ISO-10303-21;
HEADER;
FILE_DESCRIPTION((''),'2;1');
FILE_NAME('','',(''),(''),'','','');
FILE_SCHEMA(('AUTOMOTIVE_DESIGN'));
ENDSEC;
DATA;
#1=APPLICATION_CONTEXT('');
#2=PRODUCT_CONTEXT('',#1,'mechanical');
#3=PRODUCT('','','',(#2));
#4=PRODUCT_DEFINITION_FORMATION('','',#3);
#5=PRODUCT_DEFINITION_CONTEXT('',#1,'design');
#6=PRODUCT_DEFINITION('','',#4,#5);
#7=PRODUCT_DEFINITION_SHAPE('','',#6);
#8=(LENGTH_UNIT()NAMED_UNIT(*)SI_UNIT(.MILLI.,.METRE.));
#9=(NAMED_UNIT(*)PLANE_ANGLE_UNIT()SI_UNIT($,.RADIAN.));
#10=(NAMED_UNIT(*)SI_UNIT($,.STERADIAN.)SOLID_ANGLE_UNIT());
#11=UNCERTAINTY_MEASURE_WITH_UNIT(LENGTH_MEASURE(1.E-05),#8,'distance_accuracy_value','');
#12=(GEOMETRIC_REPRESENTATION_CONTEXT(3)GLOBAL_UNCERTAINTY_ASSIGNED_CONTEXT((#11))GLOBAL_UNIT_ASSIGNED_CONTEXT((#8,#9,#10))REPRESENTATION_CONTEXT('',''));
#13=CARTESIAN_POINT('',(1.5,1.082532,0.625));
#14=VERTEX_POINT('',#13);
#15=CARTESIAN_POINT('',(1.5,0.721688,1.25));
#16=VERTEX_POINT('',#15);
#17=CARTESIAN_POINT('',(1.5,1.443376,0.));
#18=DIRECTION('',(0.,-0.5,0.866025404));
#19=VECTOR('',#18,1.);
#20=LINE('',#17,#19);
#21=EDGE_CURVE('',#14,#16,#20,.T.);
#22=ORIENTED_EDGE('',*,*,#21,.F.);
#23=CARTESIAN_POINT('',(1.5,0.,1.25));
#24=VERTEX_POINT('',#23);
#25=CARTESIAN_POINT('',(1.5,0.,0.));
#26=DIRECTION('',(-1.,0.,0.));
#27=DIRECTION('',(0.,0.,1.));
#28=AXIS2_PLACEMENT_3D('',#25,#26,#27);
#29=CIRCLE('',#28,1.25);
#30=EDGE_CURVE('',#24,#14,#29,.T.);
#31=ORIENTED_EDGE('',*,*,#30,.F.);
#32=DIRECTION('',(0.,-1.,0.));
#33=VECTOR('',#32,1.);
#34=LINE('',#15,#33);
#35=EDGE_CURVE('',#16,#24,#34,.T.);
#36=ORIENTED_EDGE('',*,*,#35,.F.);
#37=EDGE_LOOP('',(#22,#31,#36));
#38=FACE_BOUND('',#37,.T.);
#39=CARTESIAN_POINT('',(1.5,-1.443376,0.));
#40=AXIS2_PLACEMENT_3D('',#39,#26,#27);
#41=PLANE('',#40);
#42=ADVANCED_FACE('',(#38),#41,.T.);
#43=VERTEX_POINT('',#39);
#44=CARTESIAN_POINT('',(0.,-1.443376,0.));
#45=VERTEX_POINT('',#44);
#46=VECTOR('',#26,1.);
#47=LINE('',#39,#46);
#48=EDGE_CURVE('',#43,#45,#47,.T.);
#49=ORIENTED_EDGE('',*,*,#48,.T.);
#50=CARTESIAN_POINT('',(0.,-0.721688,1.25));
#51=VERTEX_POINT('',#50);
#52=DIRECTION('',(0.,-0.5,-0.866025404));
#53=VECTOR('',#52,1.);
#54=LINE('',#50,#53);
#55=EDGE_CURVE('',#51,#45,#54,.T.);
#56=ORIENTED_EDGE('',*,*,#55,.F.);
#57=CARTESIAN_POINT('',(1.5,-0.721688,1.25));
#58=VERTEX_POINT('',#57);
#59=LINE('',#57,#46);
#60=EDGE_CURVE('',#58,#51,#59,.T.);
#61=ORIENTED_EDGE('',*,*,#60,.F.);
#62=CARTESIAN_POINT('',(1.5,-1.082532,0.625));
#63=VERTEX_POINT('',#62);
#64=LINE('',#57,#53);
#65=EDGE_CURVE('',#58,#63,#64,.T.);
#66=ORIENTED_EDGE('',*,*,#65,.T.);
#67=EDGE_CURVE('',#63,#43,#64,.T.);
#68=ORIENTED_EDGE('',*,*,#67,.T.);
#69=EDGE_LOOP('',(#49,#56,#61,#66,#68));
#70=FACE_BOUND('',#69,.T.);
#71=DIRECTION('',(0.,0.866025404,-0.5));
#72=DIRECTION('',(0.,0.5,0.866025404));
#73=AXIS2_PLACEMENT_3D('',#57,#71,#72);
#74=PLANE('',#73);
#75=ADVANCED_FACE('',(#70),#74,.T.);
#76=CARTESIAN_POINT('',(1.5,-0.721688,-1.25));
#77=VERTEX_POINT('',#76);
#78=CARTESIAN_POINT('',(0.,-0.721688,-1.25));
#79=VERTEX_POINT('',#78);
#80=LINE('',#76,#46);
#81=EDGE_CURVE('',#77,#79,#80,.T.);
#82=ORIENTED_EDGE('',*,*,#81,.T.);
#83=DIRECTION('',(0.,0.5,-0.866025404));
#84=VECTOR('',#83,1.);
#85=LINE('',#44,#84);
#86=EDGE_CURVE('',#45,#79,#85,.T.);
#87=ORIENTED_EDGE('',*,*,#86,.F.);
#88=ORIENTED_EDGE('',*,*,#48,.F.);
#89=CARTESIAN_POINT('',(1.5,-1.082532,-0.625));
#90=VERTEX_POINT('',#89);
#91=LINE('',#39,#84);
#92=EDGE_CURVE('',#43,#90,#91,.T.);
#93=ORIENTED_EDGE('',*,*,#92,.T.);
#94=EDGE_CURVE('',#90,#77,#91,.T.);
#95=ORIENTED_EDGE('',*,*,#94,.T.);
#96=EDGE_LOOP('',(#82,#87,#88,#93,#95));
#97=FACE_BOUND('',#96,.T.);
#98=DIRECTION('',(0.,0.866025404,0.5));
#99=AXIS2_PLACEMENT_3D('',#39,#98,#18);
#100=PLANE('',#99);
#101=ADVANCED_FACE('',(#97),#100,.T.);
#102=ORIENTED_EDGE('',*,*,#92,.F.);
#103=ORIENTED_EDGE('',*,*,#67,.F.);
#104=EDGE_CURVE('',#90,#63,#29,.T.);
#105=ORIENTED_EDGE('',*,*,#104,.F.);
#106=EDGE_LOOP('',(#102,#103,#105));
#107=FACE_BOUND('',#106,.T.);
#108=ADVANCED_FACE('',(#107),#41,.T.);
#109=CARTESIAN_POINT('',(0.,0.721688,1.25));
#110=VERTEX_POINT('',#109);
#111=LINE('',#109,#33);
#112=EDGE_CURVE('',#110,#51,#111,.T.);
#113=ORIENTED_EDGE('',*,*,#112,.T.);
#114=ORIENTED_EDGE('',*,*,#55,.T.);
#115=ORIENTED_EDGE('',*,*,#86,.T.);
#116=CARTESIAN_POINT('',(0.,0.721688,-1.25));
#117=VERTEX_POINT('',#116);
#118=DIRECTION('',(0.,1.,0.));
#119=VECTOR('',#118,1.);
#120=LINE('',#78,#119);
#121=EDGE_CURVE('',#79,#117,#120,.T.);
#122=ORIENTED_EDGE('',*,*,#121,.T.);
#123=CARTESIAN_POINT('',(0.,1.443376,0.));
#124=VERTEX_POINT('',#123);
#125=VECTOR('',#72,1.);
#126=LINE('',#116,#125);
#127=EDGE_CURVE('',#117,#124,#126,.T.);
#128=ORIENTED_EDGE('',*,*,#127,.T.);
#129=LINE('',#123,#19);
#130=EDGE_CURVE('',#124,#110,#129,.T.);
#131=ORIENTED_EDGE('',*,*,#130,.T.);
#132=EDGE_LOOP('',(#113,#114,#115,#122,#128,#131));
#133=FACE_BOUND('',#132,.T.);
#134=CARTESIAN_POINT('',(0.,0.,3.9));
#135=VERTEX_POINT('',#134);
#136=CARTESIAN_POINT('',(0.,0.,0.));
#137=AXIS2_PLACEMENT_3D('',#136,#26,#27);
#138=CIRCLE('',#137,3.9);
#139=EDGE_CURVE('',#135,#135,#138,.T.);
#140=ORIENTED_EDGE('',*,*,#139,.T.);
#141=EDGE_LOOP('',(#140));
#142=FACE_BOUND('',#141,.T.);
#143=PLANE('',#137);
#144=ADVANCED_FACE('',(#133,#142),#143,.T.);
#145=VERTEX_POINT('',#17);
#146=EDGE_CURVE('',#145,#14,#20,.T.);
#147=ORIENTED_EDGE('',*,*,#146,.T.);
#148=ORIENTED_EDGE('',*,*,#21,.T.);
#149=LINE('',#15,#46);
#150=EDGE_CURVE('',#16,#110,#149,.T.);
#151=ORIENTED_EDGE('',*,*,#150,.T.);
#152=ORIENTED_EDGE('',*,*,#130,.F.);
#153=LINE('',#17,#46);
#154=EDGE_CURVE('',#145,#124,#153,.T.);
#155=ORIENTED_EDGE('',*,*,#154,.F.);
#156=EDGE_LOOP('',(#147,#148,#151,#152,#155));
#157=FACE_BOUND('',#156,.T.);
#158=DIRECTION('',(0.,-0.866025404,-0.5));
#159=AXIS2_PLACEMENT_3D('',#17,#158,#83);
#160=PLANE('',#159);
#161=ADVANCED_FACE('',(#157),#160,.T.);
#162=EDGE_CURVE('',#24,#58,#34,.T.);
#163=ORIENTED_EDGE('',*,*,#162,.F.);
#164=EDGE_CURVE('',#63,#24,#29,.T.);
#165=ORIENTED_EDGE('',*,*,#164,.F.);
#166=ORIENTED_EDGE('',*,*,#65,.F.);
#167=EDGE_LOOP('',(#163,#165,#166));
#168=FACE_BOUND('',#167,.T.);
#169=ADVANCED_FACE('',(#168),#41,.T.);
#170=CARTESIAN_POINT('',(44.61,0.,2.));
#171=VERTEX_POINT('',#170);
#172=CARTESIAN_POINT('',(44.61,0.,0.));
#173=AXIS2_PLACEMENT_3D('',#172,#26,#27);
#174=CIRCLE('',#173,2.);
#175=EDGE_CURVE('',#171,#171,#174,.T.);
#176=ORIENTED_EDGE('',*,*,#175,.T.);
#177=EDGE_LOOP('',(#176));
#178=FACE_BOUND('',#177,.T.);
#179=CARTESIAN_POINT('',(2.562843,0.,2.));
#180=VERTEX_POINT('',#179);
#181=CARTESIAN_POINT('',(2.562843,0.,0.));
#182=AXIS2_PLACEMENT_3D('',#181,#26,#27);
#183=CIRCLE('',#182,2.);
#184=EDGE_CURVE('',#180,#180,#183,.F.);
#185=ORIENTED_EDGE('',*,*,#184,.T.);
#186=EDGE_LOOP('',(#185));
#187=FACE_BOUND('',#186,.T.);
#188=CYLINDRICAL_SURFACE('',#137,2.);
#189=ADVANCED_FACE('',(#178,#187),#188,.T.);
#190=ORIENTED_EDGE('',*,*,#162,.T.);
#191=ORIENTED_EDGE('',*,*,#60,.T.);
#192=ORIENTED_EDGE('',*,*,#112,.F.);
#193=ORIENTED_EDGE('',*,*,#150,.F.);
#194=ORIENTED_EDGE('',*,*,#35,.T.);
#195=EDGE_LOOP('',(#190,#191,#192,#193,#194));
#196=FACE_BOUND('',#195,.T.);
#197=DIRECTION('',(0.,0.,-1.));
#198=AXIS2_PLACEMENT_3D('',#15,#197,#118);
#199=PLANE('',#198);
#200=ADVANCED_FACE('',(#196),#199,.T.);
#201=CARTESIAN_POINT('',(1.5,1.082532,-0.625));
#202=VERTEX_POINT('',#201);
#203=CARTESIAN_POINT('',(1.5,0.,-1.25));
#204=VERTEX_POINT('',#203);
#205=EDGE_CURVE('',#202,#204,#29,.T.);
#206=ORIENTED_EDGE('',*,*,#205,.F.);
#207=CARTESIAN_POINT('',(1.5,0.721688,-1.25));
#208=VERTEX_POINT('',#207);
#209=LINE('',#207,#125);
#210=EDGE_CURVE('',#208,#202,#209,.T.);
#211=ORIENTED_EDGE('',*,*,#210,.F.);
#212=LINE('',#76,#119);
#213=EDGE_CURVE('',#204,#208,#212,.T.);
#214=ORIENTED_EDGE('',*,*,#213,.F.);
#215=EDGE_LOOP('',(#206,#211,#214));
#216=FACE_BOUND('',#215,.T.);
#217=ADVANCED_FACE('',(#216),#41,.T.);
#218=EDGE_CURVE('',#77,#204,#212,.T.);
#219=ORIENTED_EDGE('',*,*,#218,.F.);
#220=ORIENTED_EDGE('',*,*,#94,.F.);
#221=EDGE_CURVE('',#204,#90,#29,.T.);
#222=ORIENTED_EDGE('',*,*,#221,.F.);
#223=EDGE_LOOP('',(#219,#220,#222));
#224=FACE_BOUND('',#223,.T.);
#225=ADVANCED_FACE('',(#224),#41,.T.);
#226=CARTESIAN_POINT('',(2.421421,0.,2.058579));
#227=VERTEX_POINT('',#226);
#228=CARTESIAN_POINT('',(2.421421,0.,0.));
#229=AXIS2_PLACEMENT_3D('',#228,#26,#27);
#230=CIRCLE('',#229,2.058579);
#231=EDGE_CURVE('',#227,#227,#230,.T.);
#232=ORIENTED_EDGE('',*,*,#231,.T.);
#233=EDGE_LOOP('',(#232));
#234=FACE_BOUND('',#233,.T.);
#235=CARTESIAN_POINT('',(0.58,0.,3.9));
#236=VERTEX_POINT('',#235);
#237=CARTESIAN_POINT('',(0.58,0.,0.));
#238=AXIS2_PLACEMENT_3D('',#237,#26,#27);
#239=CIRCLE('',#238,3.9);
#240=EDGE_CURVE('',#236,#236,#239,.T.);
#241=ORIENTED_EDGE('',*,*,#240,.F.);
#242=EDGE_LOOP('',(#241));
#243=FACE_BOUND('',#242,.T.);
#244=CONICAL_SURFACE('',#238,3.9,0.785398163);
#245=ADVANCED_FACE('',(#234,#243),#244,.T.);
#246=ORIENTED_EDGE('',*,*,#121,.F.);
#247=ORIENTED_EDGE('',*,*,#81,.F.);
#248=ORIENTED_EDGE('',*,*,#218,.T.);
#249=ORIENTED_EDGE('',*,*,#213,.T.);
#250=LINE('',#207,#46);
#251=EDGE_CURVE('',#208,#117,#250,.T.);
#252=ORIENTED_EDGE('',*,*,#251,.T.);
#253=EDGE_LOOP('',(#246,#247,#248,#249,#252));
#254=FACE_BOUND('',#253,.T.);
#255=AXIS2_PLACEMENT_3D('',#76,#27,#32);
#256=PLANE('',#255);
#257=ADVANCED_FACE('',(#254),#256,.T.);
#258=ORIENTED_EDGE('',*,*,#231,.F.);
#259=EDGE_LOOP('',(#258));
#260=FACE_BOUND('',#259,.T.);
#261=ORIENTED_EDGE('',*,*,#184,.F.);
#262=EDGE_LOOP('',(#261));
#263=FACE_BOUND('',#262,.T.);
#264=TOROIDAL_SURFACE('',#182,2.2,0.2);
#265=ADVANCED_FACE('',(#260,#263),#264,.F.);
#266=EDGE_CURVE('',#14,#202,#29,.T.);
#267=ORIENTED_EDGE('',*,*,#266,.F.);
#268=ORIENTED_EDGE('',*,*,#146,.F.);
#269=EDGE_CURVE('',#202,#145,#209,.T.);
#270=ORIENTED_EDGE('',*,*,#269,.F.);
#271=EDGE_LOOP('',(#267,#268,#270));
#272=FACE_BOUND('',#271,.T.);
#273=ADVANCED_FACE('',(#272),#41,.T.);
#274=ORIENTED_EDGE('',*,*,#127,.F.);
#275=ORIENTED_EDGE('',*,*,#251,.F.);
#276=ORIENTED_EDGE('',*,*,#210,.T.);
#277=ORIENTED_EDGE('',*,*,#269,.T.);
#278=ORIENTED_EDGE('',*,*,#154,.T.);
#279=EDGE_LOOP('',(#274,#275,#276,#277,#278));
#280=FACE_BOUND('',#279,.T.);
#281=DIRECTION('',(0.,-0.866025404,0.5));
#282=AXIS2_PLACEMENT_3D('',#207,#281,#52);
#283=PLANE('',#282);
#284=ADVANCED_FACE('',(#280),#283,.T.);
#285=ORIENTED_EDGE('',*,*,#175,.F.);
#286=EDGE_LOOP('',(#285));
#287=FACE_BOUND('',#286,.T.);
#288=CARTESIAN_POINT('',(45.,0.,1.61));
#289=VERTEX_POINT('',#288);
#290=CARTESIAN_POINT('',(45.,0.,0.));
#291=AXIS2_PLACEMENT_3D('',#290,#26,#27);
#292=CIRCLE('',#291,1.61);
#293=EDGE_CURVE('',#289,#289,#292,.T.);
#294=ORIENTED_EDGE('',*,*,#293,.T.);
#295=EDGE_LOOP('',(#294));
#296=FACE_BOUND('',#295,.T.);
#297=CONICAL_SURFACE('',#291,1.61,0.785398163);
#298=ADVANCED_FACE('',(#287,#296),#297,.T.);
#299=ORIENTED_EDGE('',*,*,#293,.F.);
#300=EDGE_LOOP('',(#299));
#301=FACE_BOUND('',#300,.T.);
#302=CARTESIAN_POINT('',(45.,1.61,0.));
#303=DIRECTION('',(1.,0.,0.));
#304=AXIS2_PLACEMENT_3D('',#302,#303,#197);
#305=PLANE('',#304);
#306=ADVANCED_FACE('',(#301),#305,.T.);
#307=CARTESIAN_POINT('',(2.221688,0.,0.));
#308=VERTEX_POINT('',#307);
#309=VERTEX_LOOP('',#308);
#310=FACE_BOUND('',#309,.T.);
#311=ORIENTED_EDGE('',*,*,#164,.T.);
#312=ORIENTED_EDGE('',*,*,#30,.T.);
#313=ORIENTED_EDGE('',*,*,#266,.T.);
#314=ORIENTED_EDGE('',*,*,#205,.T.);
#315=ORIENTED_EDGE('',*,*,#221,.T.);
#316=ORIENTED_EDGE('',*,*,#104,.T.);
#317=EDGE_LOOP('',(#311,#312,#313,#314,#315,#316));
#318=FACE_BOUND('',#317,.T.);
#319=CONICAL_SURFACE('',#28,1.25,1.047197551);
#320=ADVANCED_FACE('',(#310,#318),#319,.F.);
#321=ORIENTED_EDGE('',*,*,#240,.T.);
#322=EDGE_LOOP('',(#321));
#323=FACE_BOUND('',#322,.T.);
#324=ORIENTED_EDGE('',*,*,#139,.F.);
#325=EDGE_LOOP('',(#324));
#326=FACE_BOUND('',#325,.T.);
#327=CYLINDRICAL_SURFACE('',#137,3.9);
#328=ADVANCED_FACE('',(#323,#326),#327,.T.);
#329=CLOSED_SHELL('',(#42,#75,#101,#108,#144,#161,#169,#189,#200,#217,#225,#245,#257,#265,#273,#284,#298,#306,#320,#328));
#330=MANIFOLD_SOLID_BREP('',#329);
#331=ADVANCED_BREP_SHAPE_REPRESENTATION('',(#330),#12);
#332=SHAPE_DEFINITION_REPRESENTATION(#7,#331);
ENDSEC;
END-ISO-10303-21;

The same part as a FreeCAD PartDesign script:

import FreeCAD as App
import Part
import Sketcher
from FreeCAD import Vector
Q = App.Units.Quantity


def edges_at(feature, points):
    """Names of the edges that pass closest to the given points."""
    edges = feature.Shape.Edges
    near = lambda p: min(range(len(edges)), key=lambda i: edges[i].distToShape(Part.Vertex(*p))[0])
    return sorted({f"Edge{near(p) + 1}" for p in points})

doc = App.newDocument("Part")
body = doc.addObject("PartDesign::Body", "Body")

# Sketch on XY plane
sketch1 = body.newObject("Sketcher::SketchObject", "Sketch")
sketch1.AttachmentSupport = (doc.getObject("XY_Plane"), [""])
sketch1.MapMode = "FlatFace"
sketch1.addGeometry([
    Part.LineSegment(Vector(0, 3.9, 0), Vector(0, 0, 0)),  # 0
    Part.LineSegment(Vector(0, 0, 0), Vector(45, 0, 0)),  # 1
    Part.LineSegment(Vector(45, 0, 0), Vector(45, 1.6, 0)),  # 2
    Part.LineSegment(Vector(45, 1.6, 0), Vector(44.6, 2, 0)),  # 3
    Part.LineSegment(Vector(44.6, 2, 0), Vector(2.5, 2, 0)),  # 4
    Part.LineSegment(Vector(2.5, 2, 0), Vector(0.6, 3.9, 0)),  # 5
    Part.LineSegment(Vector(0.6, 3.9, 0), Vector(0, 3.9, 0)),  # 6
], False)
sketch1.addConstraint([
    Sketcher.Constraint("Coincident", 0, 2, 1, 1),
    Sketcher.Constraint("Coincident", 1, 2, 2, 1),
    Sketcher.Constraint("Coincident", 2, 2, 3, 1),
    Sketcher.Constraint("Coincident", 3, 2, 4, 1),
    Sketcher.Constraint("Coincident", 4, 2, 5, 1),
    Sketcher.Constraint("Coincident", 5, 2, 6, 1),
    Sketcher.Constraint("Coincident", 6, 2, 0, 1),
    Sketcher.Constraint("Vertical", 0),
    Sketcher.Constraint("Horizontal", 1),
    Sketcher.Constraint("Vertical", 2),
    Sketcher.Constraint("Horizontal", 4),
    Sketcher.Constraint("Horizontal", 6),
    Sketcher.Constraint("Coincident", 0, 2, -1, 1),
    Sketcher.Constraint("Parallel", 3, 5),
    Sketcher.Constraint("DistanceX", 1, 1, 1, 2, 45.0),
    Sketcher.Constraint("Angle", 3, Q("135 deg")),
    Sketcher.Constraint("DistanceY", 0, 2, 0, 1, 3.9),
    Sketcher.Constraint("DistanceY", -1, 1, 3, 2, 2.0),
    Sketcher.Constraint("DistanceX", 4, 2, 4, 1, 42.13),
    Sketcher.Constraint("DistanceX", 6, 2, 6, 1, 0.58),
])
revolution = body.newObject("PartDesign::Revolution", "Revolution")
revolution.Profile = sketch1
revolution.ReferenceAxis = (sketch1, ["H_Axis"])
revolution.Angle = 360
doc.recompute()

fillet = body.newObject("PartDesign::Fillet", "Fillet")
fillet.Base = (revolution, edges_at(revolution, [(2.48, 0, -2)]))
fillet.Radius = 0.2

# Sketch on XY plane
sketch2 = body.newObject("Sketcher::SketchObject", "Sketch001")
sketch2.AttachmentSupport = (doc.getObject("XY_Plane"), [""])
sketch2.MapMode = "FlatFace"
sketch2.addGeometry([
    Part.LineSegment(Vector(1.5, 1.2, 0), Vector(0, 1.2, 0)),
    Part.LineSegment(Vector(0, 1.2, 0), Vector(0, 0, 0)),
    Part.LineSegment(Vector(0, 0, 0), Vector(2.2, 0, 0)),
    Part.LineSegment(Vector(2.2, 0, 0), Vector(1.5, 1.2, 0)),
], False)
sketch2.addConstraint([
    Sketcher.Constraint("Coincident", 0, 2, 1, 1),
    Sketcher.Constraint("Coincident", 1, 2, 2, 1),
    Sketcher.Constraint("Coincident", 2, 2, 3, 1),
    Sketcher.Constraint("Coincident", 3, 2, 0, 1),
    Sketcher.Constraint("Horizontal", 0),
    Sketcher.Constraint("Vertical", 1),
    Sketcher.Constraint("Horizontal", 2),
    Sketcher.Constraint("Coincident", 1, 2, -1, 1),
    Sketcher.Constraint("Angle", 3, Q("120 deg")),
    Sketcher.Constraint("DistanceX", 0, 2, 0, 1, 1.5),
    Sketcher.Constraint("DistanceY", 1, 2, 1, 1, 1.25),
])
groove = body.newObject("PartDesign::Groove", "Groove")
groove.Profile = sketch2
groove.ReferenceAxis = (sketch2, ["H_Axis"])
groove.Angle = 360

# Sketch on YZ plane
sketch3 = body.newObject("Sketcher::SketchObject", "Sketch002")
sketch3.AttachmentSupport = (doc.getObject("YZ_Plane"), [""])
sketch3.MapMode = "FlatFace"
sketch3.addGeometry([
    Part.LineSegment(Vector(0.7, -1.2, 0), Vector(-0.7, -1.2, 0)),  # 0
    Part.LineSegment(Vector(-0.7, -1.2, 0), Vector(-1.4, 0, 0)),  # 1
    Part.LineSegment(Vector(-1.4, 0, 0), Vector(-0.7, 1.2, 0)),  # 2
    Part.LineSegment(Vector(-0.7, 1.2, 0), Vector(0.7, 1.2, 0)),  # 3
    Part.LineSegment(Vector(0.7, 1.2, 0), Vector(1.4, 0, 0)),  # 4
    Part.LineSegment(Vector(1.4, 0, 0), Vector(0.7, -1.2, 0)),  # 5
], False)
sketch3.addConstraint([
    Sketcher.Constraint("Coincident", 0, 2, 1, 1),
    Sketcher.Constraint("Coincident", 1, 2, 2, 1),
    Sketcher.Constraint("Coincident", 2, 2, 3, 1),
    Sketcher.Constraint("Coincident", 3, 2, 4, 1),
    Sketcher.Constraint("Coincident", 4, 2, 5, 1),
    Sketcher.Constraint("Coincident", 5, 2, 0, 1),
    Sketcher.Constraint("Horizontal", 0),
    Sketcher.Constraint("Horizontal", 3),
    Sketcher.Constraint("Symmetric", 0, 2, 3, 2, -1, 1),
    Sketcher.Constraint("Symmetric", 1, 2, 4, 2, -1, 1),
    Sketcher.Constraint("PointOnObject", 1, 2, -1),
    Sketcher.Constraint("Parallel", 2, 5),
    Sketcher.Constraint("Vertical", 0, 2, 2, 2),
    Sketcher.Constraint("Angle", 1, Q("120 deg")),
    Sketcher.Constraint("DistanceY", 0, 2, 2, 2, 2.5),
    Sketcher.Constraint("DistanceX", 0, 2, 0, 1, 1.443376),
])
pocket1 = body.newObject("PartDesign::Pocket", "Pocket")
pocket1.Profile = sketch3
pocket1.Length = 1.5
pocket1.Reversed = True

doc.recompute()
